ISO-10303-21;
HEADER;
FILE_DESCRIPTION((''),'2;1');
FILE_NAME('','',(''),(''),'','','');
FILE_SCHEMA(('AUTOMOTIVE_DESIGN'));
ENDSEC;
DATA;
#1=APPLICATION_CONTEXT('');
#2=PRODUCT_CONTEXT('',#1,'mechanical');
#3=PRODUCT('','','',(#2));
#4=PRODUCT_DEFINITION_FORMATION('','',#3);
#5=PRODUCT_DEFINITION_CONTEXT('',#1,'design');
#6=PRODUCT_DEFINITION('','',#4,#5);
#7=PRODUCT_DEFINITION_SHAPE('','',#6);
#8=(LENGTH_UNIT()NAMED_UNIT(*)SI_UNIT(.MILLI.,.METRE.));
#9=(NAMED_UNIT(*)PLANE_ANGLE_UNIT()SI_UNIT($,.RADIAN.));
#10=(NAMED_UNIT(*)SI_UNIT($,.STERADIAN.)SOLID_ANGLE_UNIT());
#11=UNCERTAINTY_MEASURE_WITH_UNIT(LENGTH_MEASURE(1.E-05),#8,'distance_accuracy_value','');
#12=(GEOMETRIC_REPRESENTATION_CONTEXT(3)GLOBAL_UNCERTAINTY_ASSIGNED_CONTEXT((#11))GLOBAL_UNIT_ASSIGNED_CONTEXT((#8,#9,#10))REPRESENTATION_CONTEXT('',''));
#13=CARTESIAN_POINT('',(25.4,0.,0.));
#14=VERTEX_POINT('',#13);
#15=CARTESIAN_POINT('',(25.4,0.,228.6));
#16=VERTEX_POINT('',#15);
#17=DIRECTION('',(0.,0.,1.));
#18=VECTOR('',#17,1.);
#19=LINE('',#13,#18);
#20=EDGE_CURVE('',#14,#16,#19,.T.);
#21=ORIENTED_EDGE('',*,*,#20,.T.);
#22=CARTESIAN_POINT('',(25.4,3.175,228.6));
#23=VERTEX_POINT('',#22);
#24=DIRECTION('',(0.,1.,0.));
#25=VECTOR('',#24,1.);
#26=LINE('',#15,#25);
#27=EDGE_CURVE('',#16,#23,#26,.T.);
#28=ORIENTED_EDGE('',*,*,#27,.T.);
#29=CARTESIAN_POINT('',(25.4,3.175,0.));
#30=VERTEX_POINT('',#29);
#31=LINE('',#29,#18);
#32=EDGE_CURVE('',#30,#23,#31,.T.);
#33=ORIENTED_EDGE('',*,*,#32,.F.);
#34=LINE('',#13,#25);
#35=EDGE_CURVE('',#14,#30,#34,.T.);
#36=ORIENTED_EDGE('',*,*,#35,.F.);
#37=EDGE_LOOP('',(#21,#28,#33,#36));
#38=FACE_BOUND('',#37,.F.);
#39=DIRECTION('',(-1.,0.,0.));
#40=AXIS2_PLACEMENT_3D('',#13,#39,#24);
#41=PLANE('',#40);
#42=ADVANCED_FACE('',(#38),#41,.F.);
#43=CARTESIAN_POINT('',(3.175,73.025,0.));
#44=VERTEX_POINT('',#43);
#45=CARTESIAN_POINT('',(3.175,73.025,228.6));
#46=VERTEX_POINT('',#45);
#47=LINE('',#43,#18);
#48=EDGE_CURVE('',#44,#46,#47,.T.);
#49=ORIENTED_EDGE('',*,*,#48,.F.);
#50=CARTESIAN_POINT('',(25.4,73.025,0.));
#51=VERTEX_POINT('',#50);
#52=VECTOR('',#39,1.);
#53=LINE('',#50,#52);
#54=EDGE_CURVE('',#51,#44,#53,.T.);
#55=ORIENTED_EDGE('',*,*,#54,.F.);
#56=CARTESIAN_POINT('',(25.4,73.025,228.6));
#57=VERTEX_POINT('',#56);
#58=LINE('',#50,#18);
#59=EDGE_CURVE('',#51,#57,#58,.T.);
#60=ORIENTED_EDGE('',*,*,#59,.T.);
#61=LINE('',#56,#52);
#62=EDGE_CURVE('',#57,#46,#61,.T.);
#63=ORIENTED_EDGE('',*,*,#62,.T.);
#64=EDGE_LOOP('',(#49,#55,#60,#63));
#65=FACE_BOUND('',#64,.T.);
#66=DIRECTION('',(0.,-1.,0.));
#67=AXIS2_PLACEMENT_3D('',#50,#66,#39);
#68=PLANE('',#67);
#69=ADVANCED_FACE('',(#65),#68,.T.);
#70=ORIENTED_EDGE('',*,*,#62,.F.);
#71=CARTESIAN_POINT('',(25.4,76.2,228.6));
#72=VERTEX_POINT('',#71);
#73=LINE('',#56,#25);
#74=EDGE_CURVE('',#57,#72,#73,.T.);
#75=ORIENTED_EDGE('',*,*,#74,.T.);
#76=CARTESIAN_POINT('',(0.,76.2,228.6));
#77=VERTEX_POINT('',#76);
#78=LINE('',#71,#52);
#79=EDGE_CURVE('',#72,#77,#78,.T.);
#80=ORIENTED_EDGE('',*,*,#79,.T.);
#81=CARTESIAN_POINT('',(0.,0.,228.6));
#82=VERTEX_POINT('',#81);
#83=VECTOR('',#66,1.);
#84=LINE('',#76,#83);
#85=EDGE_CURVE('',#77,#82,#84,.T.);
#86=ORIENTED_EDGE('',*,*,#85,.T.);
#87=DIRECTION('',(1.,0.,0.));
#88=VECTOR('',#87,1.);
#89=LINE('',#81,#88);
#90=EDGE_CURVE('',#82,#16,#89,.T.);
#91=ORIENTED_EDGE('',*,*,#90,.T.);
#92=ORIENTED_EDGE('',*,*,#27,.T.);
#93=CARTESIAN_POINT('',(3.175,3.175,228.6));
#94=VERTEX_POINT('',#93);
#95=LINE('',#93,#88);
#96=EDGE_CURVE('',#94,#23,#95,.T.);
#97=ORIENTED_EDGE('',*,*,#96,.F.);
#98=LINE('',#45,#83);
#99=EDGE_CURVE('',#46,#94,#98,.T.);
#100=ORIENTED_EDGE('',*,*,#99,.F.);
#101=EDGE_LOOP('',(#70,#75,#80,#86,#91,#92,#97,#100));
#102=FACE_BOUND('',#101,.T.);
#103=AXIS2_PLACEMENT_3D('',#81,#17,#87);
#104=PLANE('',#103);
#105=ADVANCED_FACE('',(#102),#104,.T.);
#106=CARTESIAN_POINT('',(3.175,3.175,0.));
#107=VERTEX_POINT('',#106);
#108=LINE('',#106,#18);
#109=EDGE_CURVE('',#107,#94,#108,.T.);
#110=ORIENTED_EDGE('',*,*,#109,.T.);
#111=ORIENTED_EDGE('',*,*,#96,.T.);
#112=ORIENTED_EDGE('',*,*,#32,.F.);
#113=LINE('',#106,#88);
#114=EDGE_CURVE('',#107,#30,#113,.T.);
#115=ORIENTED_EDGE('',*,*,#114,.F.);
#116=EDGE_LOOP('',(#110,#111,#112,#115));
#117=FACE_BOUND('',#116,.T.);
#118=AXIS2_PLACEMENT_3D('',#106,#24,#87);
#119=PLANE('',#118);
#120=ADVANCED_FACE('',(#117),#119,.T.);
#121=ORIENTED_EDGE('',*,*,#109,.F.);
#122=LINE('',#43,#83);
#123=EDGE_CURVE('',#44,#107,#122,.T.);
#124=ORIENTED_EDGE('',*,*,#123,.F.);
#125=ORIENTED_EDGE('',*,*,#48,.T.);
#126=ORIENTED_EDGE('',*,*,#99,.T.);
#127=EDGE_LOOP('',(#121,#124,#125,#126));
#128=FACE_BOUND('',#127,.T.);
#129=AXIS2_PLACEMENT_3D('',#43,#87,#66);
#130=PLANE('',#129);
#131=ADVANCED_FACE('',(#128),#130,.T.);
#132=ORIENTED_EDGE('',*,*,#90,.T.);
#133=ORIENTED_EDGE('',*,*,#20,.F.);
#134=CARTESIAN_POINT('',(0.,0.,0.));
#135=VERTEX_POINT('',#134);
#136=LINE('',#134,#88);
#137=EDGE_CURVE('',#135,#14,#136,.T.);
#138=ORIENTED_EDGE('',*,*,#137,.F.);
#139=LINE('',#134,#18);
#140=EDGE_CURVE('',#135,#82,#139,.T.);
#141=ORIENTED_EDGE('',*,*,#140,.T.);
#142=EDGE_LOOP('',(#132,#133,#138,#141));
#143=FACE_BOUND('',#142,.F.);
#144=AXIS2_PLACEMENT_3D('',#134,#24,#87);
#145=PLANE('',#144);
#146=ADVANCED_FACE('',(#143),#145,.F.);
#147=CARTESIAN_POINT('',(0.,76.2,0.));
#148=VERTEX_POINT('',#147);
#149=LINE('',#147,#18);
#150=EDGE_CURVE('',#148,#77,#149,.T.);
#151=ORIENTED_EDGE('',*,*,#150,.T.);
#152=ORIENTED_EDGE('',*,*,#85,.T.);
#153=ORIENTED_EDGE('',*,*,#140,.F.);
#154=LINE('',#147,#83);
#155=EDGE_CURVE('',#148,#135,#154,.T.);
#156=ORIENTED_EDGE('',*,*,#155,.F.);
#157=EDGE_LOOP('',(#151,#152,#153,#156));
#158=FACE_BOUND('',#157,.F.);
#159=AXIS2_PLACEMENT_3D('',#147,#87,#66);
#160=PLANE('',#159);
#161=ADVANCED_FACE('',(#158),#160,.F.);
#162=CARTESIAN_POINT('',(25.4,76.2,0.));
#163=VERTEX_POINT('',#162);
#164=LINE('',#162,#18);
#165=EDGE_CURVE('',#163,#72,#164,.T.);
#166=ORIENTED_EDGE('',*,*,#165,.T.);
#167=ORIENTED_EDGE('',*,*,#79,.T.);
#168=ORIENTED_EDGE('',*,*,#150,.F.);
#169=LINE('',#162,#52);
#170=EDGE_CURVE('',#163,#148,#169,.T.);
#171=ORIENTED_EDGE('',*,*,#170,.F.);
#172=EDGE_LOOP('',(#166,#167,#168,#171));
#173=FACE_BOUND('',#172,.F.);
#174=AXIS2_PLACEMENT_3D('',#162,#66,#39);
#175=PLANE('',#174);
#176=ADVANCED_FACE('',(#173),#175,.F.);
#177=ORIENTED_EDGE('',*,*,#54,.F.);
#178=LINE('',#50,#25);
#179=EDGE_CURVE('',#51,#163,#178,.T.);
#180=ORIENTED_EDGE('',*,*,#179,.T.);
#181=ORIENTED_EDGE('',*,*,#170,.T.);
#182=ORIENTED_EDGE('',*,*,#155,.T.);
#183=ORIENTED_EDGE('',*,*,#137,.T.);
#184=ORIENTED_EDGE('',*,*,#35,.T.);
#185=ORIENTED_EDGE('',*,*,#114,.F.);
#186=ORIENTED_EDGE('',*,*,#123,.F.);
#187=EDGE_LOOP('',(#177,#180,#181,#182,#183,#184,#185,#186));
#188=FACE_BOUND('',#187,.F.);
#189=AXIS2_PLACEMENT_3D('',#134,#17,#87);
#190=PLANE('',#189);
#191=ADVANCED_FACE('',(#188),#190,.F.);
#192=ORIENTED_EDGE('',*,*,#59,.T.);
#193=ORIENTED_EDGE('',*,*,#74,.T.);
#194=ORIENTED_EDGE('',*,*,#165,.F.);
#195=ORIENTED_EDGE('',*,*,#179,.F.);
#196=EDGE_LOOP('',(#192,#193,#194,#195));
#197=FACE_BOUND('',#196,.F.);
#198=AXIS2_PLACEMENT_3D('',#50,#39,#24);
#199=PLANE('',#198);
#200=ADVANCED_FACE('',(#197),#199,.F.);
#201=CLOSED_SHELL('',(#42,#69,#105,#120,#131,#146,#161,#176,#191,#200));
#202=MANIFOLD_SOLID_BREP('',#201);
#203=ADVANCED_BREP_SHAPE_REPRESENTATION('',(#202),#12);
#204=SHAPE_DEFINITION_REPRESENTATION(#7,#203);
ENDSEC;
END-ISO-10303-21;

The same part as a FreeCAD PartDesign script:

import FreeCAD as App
import Part
import Sketcher
Q = App.Units.Quantity

doc = App.newDocument("Part")
body = doc.addObject("PartDesign::Body", "Body")

# Sketch on XY plane
sketch1 = doc.addObject("Sketcher::SketchObject", "Sketch")
body.addObject(sketch1)
sketch1.AttachmentSupport = (doc.XY_Plane, [""])
sketch1.MapMode = "FlatFace"
sketch1.addGeometry([
    Part.LineSegment(App.Vector(0, 76.2, 0), App.Vector(0, 0, 0)),  # 0
    Part.LineSegment(App.Vector(0, 0, 0), App.Vector(25.4, 0, 0)),  # 1
    Part.LineSegment(App.Vector(25.4, 0, 0), App.Vector(25.4, 3.175, 0)),  # 2
    Part.LineSegment(App.Vector(25.4, 3.175, 0), App.Vector(3.175, 3.175, 0)),  # 3
    Part.LineSegment(App.Vector(3.175, 3.175, 0), App.Vector(3.175, 73.025, 0)),  # 4
    Part.LineSegment(App.Vector(3.175, 73.025, 0), App.Vector(25.4, 73.025, 0)),  # 5
    Part.LineSegment(App.Vector(25.4, 73.025, 0), App.Vector(25.4, 76.2, 0)),  # 6
    Part.LineSegment(App.Vector(25.4, 76.2, 0), App.Vector(0, 76.2, 0)),  # 7
], False)
sketch1.addConstraint([
    Sketcher.Constraint("Coincident", 0, 2, 1, 1),
    Sketcher.Constraint("Coincident", 1, 2, 2, 1),
    Sketcher.Constraint("Coincident", 2, 2, 3, 1),
    Sketcher.Constraint("Coincident", 3, 2, 4, 1),
    Sketcher.Constraint("Coincident", 4, 2, 5, 1),
    Sketcher.Constraint("Coincident", 5, 2, 6, 1),
    Sketcher.Constraint("Coincident", 6, 2, 7, 1),
    Sketcher.Constraint("Coincident", 7, 2, 0, 1),
    Sketcher.Constraint("Vertical", 0),
    Sketcher.Constraint("Horizontal", 1),
    Sketcher.Constraint("Vertical", 2),
    Sketcher.Constraint("Horizontal", 3),
    Sketcher.Constraint("Vertical", 4),
    Sketcher.Constraint("Horizontal", 5),
    Sketcher.Constraint("Vertical", 6),
    Sketcher.Constraint("Horizontal", 7),
    Sketcher.Constraint("Coincident", 0, 2, -1, 1),
    Sketcher.Constraint("Vertical", 2, 2, 5, 2),
    Sketcher.Constraint("Equal", 2, 6),
    Sketcher.Constraint("DistanceX", 1, 1, 1, 2, Q("1 in")),
    Sketcher.Constraint("DistanceY", 0, 2, 0, 1, Q("3 in")),
    Sketcher.Constraint("DistanceY", 2, 1, 2, 2, Q("0.125 in")),
    Sketcher.Constraint("DistanceX", -1, 1, 3, 2, Q("0.125 in")),
])
pad1 = doc.addObject("PartDesign::Pad", "Pad")
body.addObject(pad1)
pad1.Profile = sketch1
pad1.Length = Q("9 in")

doc.recompute()
